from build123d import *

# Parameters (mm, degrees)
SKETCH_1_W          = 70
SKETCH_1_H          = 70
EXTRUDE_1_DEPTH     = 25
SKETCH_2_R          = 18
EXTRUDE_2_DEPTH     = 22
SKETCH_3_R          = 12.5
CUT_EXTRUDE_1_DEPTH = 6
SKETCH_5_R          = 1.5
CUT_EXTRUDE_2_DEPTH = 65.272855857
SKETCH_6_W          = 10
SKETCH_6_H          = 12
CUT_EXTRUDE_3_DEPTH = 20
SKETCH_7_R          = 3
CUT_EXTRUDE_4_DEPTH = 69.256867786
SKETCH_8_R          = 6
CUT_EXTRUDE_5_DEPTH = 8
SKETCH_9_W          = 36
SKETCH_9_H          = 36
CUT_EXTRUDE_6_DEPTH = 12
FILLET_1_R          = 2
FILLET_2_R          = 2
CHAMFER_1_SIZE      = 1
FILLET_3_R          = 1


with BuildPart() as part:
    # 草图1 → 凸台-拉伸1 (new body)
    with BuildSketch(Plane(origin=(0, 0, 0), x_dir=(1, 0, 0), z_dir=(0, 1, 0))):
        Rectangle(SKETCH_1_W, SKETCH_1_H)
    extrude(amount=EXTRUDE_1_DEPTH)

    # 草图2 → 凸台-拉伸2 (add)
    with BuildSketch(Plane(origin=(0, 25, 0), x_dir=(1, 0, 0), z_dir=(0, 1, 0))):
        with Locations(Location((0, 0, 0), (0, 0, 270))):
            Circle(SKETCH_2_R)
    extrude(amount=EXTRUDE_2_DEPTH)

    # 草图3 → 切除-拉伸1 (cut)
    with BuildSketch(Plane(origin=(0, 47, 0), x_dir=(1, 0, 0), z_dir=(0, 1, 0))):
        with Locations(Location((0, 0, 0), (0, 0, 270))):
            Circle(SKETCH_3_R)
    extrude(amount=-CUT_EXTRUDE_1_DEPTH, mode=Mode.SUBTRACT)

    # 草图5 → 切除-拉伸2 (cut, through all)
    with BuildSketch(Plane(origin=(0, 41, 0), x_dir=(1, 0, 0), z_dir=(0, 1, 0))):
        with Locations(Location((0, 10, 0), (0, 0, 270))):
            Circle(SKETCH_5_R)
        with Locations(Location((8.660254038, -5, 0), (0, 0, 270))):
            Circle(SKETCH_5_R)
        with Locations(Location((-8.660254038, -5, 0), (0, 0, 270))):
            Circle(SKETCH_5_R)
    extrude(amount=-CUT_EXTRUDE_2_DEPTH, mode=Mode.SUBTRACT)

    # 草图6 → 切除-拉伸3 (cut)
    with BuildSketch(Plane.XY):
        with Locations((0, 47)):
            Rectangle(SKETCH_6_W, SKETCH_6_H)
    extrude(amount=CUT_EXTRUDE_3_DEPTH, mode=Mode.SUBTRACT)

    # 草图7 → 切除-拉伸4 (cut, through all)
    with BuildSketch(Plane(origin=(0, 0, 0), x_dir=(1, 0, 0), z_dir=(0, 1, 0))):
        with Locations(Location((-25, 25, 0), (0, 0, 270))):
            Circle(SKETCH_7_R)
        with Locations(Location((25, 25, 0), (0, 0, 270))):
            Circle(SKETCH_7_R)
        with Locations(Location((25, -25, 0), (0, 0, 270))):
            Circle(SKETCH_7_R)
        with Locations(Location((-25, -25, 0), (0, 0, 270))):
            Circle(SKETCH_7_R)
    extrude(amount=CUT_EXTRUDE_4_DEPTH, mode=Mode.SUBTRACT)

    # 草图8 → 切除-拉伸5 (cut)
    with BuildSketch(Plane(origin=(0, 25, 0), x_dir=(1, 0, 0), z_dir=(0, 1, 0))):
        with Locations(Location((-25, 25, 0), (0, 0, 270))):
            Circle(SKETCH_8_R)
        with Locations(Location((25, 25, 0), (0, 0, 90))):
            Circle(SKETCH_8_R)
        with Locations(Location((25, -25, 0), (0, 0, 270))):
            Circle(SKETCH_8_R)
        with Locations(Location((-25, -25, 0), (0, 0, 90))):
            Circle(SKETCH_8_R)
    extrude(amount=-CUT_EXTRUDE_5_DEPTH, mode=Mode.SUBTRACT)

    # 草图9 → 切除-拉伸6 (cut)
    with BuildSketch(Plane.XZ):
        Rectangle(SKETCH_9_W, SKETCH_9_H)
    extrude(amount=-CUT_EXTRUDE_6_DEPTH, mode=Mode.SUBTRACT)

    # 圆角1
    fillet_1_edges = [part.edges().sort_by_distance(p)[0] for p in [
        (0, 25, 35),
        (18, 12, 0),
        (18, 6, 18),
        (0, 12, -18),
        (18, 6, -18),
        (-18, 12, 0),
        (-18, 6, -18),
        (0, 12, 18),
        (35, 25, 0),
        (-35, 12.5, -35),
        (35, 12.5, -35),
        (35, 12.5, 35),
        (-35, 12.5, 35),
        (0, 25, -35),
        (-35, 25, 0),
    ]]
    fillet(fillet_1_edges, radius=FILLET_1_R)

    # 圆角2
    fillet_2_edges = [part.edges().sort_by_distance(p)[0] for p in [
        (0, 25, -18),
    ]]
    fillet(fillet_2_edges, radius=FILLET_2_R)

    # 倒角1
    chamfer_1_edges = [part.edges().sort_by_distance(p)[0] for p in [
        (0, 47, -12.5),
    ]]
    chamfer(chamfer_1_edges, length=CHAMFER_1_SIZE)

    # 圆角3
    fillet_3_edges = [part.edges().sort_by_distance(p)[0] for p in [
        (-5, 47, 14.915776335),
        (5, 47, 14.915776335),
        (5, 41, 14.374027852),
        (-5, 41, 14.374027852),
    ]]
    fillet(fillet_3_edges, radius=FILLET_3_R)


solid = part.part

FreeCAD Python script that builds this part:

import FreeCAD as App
import Part
import Sketcher
Q = App.Units.Quantity


def edges_at(feature, points):
    """Names of the edges that pass closest to the given points."""
    edges = feature.Shape.Edges
    near = lambda p: min(range(len(edges)), key=lambda i: edges[i].distToShape(Part.Vertex(*p))[0])
    return sorted({f"Edge{near(p) + 1}" for p in points})


def add_polygon(sketch, points):
    """Adds a closed chain of lines whose ends are joined by coincident constraints."""
    first, n = sketch.GeometryCount, len(points)
    for a, b in zip(points, points[1:] + points[:1]):
        sketch.addGeometry(Part.LineSegment(App.Vector(*a, 0), App.Vector(*b, 0)), False)
    for i in range(n):
        sketch.addConstraint(Sketcher.Constraint("Coincident", first + i, 2, first + (i + 1) % n, 1))

doc = App.newDocument("Part")
body = doc.addObject("PartDesign::Body", "Body")

sketch1 = body.newObject("Sketcher::SketchObject", "Sketch")
sketch1.AttachmentSupport = (doc.getObject("XZ_Plane"), [""])
sketch1.MapMode = "FlatFace"
add_polygon(sketch1, [(-35, -35), (-35, 35), (35, 35), (35, -35)])
sketch1.addConstraint([
    Sketcher.Constraint("Vertical", 0),
    Sketcher.Constraint("Horizontal", 1),
    Sketcher.Constraint("Vertical", 2),
    Sketcher.Constraint("Horizontal", 3),
    Sketcher.Constraint("Symmetric", 0, 2, 2, 2, -1, 1),
    Sketcher.Constraint("Equal", 3, 0),
    Sketcher.Constraint("DistanceX", 1, 1, 1, 2, Q("70 mm")),
])
pad1 = body.newObject("PartDesign::Pad", "Pad")
pad1.Profile = sketch1
pad1.Length = 25
pad1.Reversed = True

sketch2 = body.newObject("Sketcher::SketchObject", "Sketch001")
sketch2.AttachmentSupport = (doc.getObject("XZ_Plane"), [""])
sketch2.MapMode = "FlatFace"
sketch2.AttachmentOffset = App.Placement(App.Vector(0, 0, -25), App.Rotation())
sketch2.addGeometry(Part.Circle(App.Vector(0, 0, 0), App.Vector(0, 0, 1), 18), False)
sketch2.addConstraint([
    Sketcher.Constraint("Coincident", 0, 3, -1, 1),
    Sketcher.Constraint("Diameter", 0, Q("36 mm")),
])
pad2 = body.newObject("PartDesign::Pad", "Pad001")
pad2.Profile = sketch2
pad2.Length = 22
pad2.Reversed = True

sketch3 = body.newObject("Sketcher::SketchObject", "Sketch002")
sketch3.AttachmentSupport = (doc.getObject("XZ_Plane"), [""])
sketch3.MapMode = "FlatFace"
sketch3.AttachmentOffset = App.Placement(App.Vector(0, 0, -47), App.Rotation())
sketch3.addGeometry(Part.Circle(App.Vector(0, 0, 0), App.Vector(0, 0, 1), 12), False)
sketch3.addConstraint([
    Sketcher.Constraint("Coincident", 0, 3, -1, 1),
    Sketcher.Constraint("Diameter", 0, Q("25 mm")),
])
pocket1 = body.newObject("PartDesign::Pocket", "Pocket")
pocket1.Profile = sketch3
pocket1.Length = 6
pocket1.Reversed = True

sketch4 = body.newObject("Sketcher::SketchObject", "Sketch003")
sketch4.AttachmentSupport = (doc.getObject("XZ_Plane"), [""])
sketch4.MapMode = "FlatFace"
sketch4.AttachmentOffset = App.Placement(App.Vector(0, 0, -41), App.Rotation())
sketch4.addGeometry([
    Part.Circle(App.Vector(0, -10, 0), App.Vector(0, 0, 1), 1.5),
    Part.Circle(App.Vector(8.7, 5, 0), App.Vector(0, 0, 1), 1.5),
    Part.Circle(App.Vector(-8.7, 5, 0), App.Vector(0, 0, 1), 1.5),
], False)
sketch4.addConstraint([
    Sketcher.Constraint("Equal", 0, 1),
    Sketcher.Constraint("Equal", 1, 2),
    Sketcher.Constraint("Symmetric", 1, 3, 2, 3, -2),
    Sketcher.Constraint("PointOnObject", 0, 3, -2),
    Sketcher.Constraint("Diameter", 0, Q("3 mm")),
    Sketcher.Constraint("DistanceY", 0, 3, -1, 1, Q("10 mm")),
    Sketcher.Constraint("DistanceY", -1, 1, 1, 3, Q("5 mm")),
    Sketcher.Constraint("DistanceX", 2, 3, 1, 3, Q("17.320508 mm")),
])
pocket2 = body.newObject("PartDesign::Pocket", "Pocket001")
pocket2.Profile = sketch4
pocket2.Type = "ThroughAll"
pocket2.Reversed = True

sketch5 = body.newObject("Sketcher::SketchObject", "Sketch004")
sketch5.AttachmentSupport = (doc.getObject("XY_Plane"), [""])
sketch5.MapMode = "FlatFace"
add_polygon(sketch5, [(-5, 53), (-5, 41), (5, 41), (5, 53)])
sketch5.addConstraint([
    Sketcher.Constraint("Vertical", 0),
    Sketcher.Constraint("Horizontal", 1),
    Sketcher.Constraint("Vertical", 2),
    Sketcher.Constraint("Horizontal", 3),
    Sketcher.Constraint("DistanceX", 1, 1, 1, 2, Q("10 mm")),
    Sketcher.Constraint("DistanceY", 0, 2, 0, 1, Q("12 mm")),
    Sketcher.Constraint("DistanceX", 0, 2, -1, 1, Q("5 mm")),
    Sketcher.Constraint("DistanceY", -1, 1, 0, 2, Q("41 mm")),
])
pocket3 = body.newObject("PartDesign::Pocket", "Pocket002")
pocket3.Profile = sketch5
pocket3.Length = 20
pocket3.Reversed = True

sketch6 = body.newObject("Sketcher::SketchObject", "Sketch005")
sketch6.AttachmentSupport = (doc.getObject("XZ_Plane"), [""])
sketch6.MapMode = "FlatFace"
sketch6.addGeometry([
    Part.Circle(App.Vector(-25, -25, 0), App.Vector(0, 0, 1), 3),
    Part.Circle(App.Vector(25, -25, 0), App.Vector(0, 0, 1), 3),
    Part.Circle(App.Vector(25, 25, 0), App.Vector(0, 0, 1), 3),
    Part.Circle(App.Vector(-25, 25, 0), App.Vector(0, 0, 1), 3),
], False)
sketch6.addConstraint([
    Sketcher.Constraint("Equal", 0, 1),
    Sketcher.Constraint("Equal", 1, 2),
    Sketcher.Constraint("Equal", 2, 3),
    Sketcher.Constraint("Symmetric", 0, 3, 2, 3, -1, 1),
    Sketcher.Constraint("Symmetric", 1, 3, 3, 3, -1, 1),
    Sketcher.Constraint("Symmetric", 0, 3, 1, 3, -2),
    Sketcher.Constraint("Diameter", 0, Q("6 mm")),
    Sketcher.Constraint("DistanceX", 0, 3, -1, 1, Q("25 mm")),
    Sketcher.Constraint("DistanceY", 0, 3, -1, 1, Q("25 mm")),
])
pocket4 = body.newObject("PartDesign::Pocket", "Pocket003")
pocket4.Profile = sketch6
pocket4.Type = "ThroughAll"

sketch7 = body.newObject("Sketcher::SketchObject", "Sketch006")
sketch7.AttachmentSupport = (doc.getObject("XZ_Plane"), [""])
sketch7.MapMode = "FlatFace"
sketch7.AttachmentOffset = App.Placement(App.Vector(0, 0, -25), App.Rotation())
sketch7.addGeometry([
    Part.Circle(App.Vector(-25, -25, 0), App.Vector(0, 0, 1), 6),
    Part.Circle(App.Vector(25, -25, 0), App.Vector(0, 0, 1), 6),
    Part.Circle(App.Vector(25, 25, 0), App.Vector(0, 0, 1), 6),
    Part.Circle(App.Vector(-25, 25, 0), App.Vector(0, 0, 1), 6),
], False)
sketch7.addConstraint([
    Sketcher.Constraint("Equal", 0, 1),
    Sketcher.Constraint("Equal", 1, 2),
    Sketcher.Constraint("Equal", 2, 3),
    Sketcher.Constraint("Symmetric", 0, 3, 2, 3, -1, 1),
    Sketcher.Constraint("Symmetric", 1, 3, 3, 3, -1, 1),
    Sketcher.Constraint("Symmetric", 0, 3, 1, 3, -2),
    Sketcher.Constraint("Diameter", 0, Q("12 mm")),
    Sketcher.Constraint("DistanceX", 0, 3, -1, 1, Q("25 mm")),
    Sketcher.Constraint("DistanceY", 0, 3, -1, 1, Q("25 mm")),
])
pocket5 = body.newObject("PartDesign::Pocket", "Pocket004")
pocket5.Profile = sketch7
pocket5.Length = 8
pocket5.Reversed = True

sketch8 = body.newObject("Sketcher::SketchObject", "Sketch007")
sketch8.AttachmentSupport = (doc.getObject("XZ_Plane"), [""])
sketch8.MapMode = "FlatFace"
add_polygon(sketch8, [(-18, 18), (-18, -18), (18, -18), (18, 18)])
sketch8.addConstraint([
    Sketcher.Constraint("Vertical", 0),
    Sketcher.Constraint("Horizontal", 1),
    Sketcher.Constraint("Vertical", 2),
    Sketcher.Constraint("Horizontal", 3),
    Sketcher.Constraint("Symmetric", 0, 2, 2, 2, -1, 1),
    Sketcher.Constraint("Equal", 3, 0),
    Sketcher.Constraint("DistanceX", 1, 1, 1, 2, Q("36 mm")),
])
pocket6 = body.newObject("PartDesign::Pocket", "Pocket005")
pocket6.Profile = sketch8
pocket6.Length = 12
doc.recompute()

fillet = body.newObject("PartDesign::Fillet", "Fillet")
fillet.Base = (pocket6, edges_at(pocket6, [
    (0, 25, 35),
    (18, 12, 0),
    (18, 6, 18),
    (0, 12, -18),
    (18, 6, -18),
    (-18, 12, 0),
    (-18, 6, -18),
    (0, 12, 18),
    (35, 25, 0),
    (-35, 12.5, -35),
    (35, 12.5, -35),
    (35, 12.5, 35),
    (-35, 12.5, 35),
    (0, 25, -35),
    (-35, 25, 0),
]))
fillet.Radius = 2
doc.recompute()

fillet2 = body.newObject("PartDesign::Fillet", "Fillet001")
fillet2.Base = (fillet, edges_at(fillet, [(0, 25, -18)]))
fillet2.Radius = 2
doc.recompute()

chamfer = body.newObject("PartDesign::Chamfer", "Chamfer")
chamfer.Base = (fillet2, edges_at(fillet2, [(0, 47, -12.5)]))
chamfer.Size = 1
doc.recompute()

fillet3 = body.newObject("PartDesign::Fillet", "Fillet002")
fillet3.Base = (chamfer, edges_at(chamfer, [
    (-5, 47, 14.916),
    (5, 47, 14.916),
    (5, 41, 14.374),
    (-5, 41, 14.374),
]))
fillet3.Radius = 1

doc.recompute()
